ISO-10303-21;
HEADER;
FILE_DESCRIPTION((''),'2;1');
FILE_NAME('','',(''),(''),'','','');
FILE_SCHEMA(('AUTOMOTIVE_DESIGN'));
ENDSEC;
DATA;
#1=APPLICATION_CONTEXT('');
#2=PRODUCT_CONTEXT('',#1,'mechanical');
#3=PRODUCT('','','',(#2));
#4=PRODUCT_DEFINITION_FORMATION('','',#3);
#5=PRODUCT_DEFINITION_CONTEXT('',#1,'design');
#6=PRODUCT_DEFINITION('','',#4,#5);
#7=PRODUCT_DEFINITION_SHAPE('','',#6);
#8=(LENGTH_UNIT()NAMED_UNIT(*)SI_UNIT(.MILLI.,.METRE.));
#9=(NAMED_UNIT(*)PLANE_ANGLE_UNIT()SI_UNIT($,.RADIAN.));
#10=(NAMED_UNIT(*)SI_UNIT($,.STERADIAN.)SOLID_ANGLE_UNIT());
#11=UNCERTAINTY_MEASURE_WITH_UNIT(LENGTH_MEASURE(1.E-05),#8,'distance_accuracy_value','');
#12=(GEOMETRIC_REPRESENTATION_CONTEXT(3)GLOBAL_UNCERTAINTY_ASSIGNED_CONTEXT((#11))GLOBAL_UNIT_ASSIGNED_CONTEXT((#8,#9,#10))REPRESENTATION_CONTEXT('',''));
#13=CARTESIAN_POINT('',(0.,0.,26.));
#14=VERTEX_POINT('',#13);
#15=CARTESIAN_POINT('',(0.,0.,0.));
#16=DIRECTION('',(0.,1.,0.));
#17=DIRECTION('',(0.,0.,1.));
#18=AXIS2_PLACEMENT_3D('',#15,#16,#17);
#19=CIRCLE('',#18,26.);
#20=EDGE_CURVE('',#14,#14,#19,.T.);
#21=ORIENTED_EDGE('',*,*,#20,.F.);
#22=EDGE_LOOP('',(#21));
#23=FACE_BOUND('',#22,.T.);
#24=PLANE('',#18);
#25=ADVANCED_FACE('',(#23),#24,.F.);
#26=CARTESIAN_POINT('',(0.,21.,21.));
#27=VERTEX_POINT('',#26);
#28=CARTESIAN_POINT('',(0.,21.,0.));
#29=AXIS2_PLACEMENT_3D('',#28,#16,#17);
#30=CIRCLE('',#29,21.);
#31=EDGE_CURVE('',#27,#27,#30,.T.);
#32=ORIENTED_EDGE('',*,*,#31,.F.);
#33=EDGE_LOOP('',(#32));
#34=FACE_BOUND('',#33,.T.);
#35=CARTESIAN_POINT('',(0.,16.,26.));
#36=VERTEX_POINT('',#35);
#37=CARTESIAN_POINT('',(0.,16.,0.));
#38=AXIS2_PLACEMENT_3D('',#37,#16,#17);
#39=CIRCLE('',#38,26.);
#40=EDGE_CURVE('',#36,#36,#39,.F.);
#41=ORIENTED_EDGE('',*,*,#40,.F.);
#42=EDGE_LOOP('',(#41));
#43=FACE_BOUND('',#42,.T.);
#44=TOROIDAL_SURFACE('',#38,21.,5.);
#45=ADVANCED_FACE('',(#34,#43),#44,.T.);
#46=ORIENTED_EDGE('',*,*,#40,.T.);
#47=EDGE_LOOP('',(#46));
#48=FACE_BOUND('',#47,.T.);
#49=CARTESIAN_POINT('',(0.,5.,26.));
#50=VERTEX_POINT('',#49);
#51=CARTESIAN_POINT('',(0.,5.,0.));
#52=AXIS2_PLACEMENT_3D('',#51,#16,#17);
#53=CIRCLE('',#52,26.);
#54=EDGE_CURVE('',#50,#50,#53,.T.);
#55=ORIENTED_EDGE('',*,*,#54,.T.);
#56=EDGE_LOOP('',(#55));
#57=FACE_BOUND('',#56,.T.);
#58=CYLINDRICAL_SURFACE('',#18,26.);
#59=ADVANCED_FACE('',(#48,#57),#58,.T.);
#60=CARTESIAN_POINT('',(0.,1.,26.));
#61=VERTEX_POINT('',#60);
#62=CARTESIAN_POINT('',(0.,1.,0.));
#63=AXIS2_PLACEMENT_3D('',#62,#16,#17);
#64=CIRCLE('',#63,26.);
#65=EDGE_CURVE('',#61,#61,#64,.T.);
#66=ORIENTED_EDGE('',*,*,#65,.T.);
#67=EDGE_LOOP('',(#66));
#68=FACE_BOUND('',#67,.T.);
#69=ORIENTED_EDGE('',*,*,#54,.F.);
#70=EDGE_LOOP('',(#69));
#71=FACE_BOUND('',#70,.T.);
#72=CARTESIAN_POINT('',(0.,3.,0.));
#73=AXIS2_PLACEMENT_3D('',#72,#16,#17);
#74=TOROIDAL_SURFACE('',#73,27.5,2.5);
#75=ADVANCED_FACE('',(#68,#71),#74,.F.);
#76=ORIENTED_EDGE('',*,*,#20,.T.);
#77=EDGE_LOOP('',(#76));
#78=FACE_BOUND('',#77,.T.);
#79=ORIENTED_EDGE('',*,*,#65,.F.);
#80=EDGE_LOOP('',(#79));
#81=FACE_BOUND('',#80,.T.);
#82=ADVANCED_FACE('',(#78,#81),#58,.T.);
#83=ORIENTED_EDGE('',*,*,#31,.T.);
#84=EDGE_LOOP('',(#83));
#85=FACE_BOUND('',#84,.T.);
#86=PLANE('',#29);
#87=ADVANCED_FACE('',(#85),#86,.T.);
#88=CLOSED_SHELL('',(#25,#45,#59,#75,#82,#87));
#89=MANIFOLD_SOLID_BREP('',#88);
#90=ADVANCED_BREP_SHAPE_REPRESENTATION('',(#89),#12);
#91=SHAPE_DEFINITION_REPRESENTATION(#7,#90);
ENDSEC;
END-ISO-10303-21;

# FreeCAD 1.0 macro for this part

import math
import FreeCAD as App
import Part
import Sketcher

V = App.Vector


def edges_at(feature, points):
    """Names of the edges that pass closest to the given points."""
    edges = feature.Shape.Edges
    near = lambda p: min(range(len(edges)), key=lambda i: edges[i].distToShape(Part.Vertex(*p))[0])
    return sorted({f"Edge{near(p) + 1}" for p in points})

doc = App.newDocument("Part")
body = doc.addObject("PartDesign::Body", "Body")

# Sketch on XY plane
sketch1 = body.newObject("Sketcher::SketchObject", "Sketch")
sketch1.AttachmentSupport = (doc.getObject("XY_Plane"), [""])
sketch1.MapMode = "FlatFace"
sketch1.addGeometry(Part.LineSegment(V(0, 0, 0), V(26, 0, 0)), False)
sketch1.addGeometry(Part.LineSegment(V(26, 0, 0), V(26, 1, 0)), False)
sketch1.addGeometry(Part.ArcOfCircle(Part.Circle(V(27.5, 3, 0), V(0, 0, 1), 2.5), math.radians(127), math.radians(233)), False)
sketch1.addGeometry(Part.LineSegment(V(26, 5, 0), V(26, 6, 0)), False)
sketch1.addGeometry(Part.LineSegment(V(26, 6, 0), V(0, 6, 0)), False)
sketch1.addGeometry(Part.LineSegment(V(0, 6, 0), V(0, 0, 0)), False)
sketch1.addConstraint(Sketcher.Constraint("Coincident", 0, 2, 1, 1))
sketch1.addConstraint(Sketcher.Constraint("Coincident", 1, 2, 2, 2))
sketch1.addConstraint(Sketcher.Constraint("Coincident", 2, 1, 3, 1))
sketch1.addConstraint(Sketcher.Constraint("Coincident", 3, 2, 4, 1))
sketch1.addConstraint(Sketcher.Constraint("Coincident", 4, 2, 5, 1))
sketch1.addConstraint(Sketcher.Constraint("Coincident", 5, 2, 0, 1))
sketch1.addConstraint(Sketcher.Constraint("Horizontal", 0))
sketch1.addConstraint(Sketcher.Constraint("Vertical", 1))
sketch1.addConstraint(Sketcher.Constraint("Vertical", 3))
sketch1.addConstraint(Sketcher.Constraint("Horizontal", 4))
sketch1.addConstraint(Sketcher.Constraint("Vertical", 5))
sketch1.addConstraint(Sketcher.Constraint("Coincident", 5, 2, -1, 1))
sketch1.addConstraint(Sketcher.Constraint("Vertical", 1, 2, 2, 1))
sketch1.addConstraint(Sketcher.Constraint("Equal", 1, 3))
sketch1.addConstraint(Sketcher.Constraint("Radius", 2, 2.5))
sketch1.addConstraint(Sketcher.Constraint("DistanceX", 0, 1, 0, 2, 26.0))
sketch1.addConstraint(Sketcher.Constraint("DistanceY", 1, 1, 1, 2, 1.0))
sketch1.addConstraint(Sketcher.Constraint("DistanceY", 5, 2, 5, 1, 6.0))
revolution = body.newObject("PartDesign::Revolution", "Revolution")
revolution.Profile = sketch1
revolution.ReferenceAxis = (sketch1, ["V_Axis"])
revolution.Angle = 360

# Sketch on XZ plane
sketch2 = body.newObject("Sketcher::SketchObject", "Sketch001")
sketch2.AttachmentSupport = (doc.getObject("XZ_Plane"), [""])
sketch2.MapMode = "FlatFace"
sketch2.AttachmentOffset = App.Placement(V(0, 0, -6), App.Rotation())
sketch2.addGeometry(Part.Circle(V(0, 0, 0), V(0, 0, 1), 26), False)
sketch2.addConstraint(Sketcher.Constraint("Coincident", 0, 3, -1, 1))
sketch2.addConstraint(Sketcher.Constraint("Diameter", 0, 52.0))
pad1 = body.newObject("PartDesign::Pad", "Pad")
pad1.Profile = sketch2
pad1.Length = 15
pad1.Reversed = True
doc.recompute()

fillet = body.newObject("PartDesign::Fillet", "Fillet")
fillet.Base = (pad1, edges_at(pad1, [(-26, 21, 0)]))
fillet.Radius = 5

doc.recompute()
